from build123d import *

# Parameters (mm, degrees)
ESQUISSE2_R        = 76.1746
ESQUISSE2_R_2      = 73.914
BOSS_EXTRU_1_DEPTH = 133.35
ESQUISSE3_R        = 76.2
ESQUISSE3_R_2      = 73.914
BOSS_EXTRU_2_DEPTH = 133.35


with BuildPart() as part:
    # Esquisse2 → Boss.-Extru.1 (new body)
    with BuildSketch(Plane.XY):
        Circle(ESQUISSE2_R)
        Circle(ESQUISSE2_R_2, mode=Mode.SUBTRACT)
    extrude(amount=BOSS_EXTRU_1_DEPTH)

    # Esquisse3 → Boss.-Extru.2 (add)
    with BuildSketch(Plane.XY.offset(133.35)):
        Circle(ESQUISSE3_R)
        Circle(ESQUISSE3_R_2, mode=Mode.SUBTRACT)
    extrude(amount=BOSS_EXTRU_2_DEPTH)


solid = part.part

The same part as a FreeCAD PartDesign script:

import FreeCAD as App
import Part
import Sketcher
Q = App.Units.Quantity

doc = App.newDocument("Part")
body = doc.addObject("PartDesign::Body", "Body")

# Sketch on XY plane
sketch1 = body.newObject("Sketcher::SketchObject", "Sketch")
sketch1.AttachmentSupport = (doc.getObject("XY_Plane"), [""])
sketch1.MapMode = "FlatFace"
sketch1.addGeometry(Part.Circle(App.Vector(0, 0, 0), App.Vector(0, 0, 1), 76), False)
sketch1.addGeometry(Part.Circle(App.Vector(0, 0, 0), App.Vector(0, 0, 1), 74), False)
sketch1.addConstraint(Sketcher.Constraint("Coincident", 0, 3, -1, 1))
sketch1.addConstraint(Sketcher.Constraint("Coincident", 1, 3, -1, 1))
sketch1.addConstraint(Sketcher.Constraint("Diameter", 1, Q("5.82 in")))
sketch1.addConstraint(Sketcher.Constraint("Diameter", 0, Q("5.998 in")))
pad1 = body.newObject("PartDesign::Pad", "Pad")
pad1.Profile = sketch1
pad1.Length = Q("5.25 in")

# Sketch on XY plane
sketch2 = body.newObject("Sketcher::SketchObject", "Sketch001")
sketch2.AttachmentSupport = (doc.getObject("XY_Plane"), [""])
sketch2.MapMode = "FlatFace"
sketch2.AttachmentOffset = App.Placement(App.Vector(0, 0, 5.25 * 25.4), App.Rotation())
sketch2.addGeometry(Part.Circle(App.Vector(0, 0, 0), App.Vector(0, 0, 1), 76), False)
sketch2.addGeometry(Part.Circle(App.Vector(0, 0, 0), App.Vector(0, 0, 1), 74), False)
sketch2.addConstraint(Sketcher.Constraint("Coincident", 0, 3, -1, 1))
sketch2.addConstraint(Sketcher.Constraint("Coincident", 1, 3, -1, 1))
sketch2.addConstraint(Sketcher.Constraint("Diameter", 0, Q("6 in")))
sketch2.addConstraint(Sketcher.Constraint("Diameter", 1, Q("5.82 in")))
pad2 = body.newObject("PartDesign::Pad", "Pad001")
pad2.Profile = sketch2
pad2.Length = Q("5.25 in")

doc.recompute()
